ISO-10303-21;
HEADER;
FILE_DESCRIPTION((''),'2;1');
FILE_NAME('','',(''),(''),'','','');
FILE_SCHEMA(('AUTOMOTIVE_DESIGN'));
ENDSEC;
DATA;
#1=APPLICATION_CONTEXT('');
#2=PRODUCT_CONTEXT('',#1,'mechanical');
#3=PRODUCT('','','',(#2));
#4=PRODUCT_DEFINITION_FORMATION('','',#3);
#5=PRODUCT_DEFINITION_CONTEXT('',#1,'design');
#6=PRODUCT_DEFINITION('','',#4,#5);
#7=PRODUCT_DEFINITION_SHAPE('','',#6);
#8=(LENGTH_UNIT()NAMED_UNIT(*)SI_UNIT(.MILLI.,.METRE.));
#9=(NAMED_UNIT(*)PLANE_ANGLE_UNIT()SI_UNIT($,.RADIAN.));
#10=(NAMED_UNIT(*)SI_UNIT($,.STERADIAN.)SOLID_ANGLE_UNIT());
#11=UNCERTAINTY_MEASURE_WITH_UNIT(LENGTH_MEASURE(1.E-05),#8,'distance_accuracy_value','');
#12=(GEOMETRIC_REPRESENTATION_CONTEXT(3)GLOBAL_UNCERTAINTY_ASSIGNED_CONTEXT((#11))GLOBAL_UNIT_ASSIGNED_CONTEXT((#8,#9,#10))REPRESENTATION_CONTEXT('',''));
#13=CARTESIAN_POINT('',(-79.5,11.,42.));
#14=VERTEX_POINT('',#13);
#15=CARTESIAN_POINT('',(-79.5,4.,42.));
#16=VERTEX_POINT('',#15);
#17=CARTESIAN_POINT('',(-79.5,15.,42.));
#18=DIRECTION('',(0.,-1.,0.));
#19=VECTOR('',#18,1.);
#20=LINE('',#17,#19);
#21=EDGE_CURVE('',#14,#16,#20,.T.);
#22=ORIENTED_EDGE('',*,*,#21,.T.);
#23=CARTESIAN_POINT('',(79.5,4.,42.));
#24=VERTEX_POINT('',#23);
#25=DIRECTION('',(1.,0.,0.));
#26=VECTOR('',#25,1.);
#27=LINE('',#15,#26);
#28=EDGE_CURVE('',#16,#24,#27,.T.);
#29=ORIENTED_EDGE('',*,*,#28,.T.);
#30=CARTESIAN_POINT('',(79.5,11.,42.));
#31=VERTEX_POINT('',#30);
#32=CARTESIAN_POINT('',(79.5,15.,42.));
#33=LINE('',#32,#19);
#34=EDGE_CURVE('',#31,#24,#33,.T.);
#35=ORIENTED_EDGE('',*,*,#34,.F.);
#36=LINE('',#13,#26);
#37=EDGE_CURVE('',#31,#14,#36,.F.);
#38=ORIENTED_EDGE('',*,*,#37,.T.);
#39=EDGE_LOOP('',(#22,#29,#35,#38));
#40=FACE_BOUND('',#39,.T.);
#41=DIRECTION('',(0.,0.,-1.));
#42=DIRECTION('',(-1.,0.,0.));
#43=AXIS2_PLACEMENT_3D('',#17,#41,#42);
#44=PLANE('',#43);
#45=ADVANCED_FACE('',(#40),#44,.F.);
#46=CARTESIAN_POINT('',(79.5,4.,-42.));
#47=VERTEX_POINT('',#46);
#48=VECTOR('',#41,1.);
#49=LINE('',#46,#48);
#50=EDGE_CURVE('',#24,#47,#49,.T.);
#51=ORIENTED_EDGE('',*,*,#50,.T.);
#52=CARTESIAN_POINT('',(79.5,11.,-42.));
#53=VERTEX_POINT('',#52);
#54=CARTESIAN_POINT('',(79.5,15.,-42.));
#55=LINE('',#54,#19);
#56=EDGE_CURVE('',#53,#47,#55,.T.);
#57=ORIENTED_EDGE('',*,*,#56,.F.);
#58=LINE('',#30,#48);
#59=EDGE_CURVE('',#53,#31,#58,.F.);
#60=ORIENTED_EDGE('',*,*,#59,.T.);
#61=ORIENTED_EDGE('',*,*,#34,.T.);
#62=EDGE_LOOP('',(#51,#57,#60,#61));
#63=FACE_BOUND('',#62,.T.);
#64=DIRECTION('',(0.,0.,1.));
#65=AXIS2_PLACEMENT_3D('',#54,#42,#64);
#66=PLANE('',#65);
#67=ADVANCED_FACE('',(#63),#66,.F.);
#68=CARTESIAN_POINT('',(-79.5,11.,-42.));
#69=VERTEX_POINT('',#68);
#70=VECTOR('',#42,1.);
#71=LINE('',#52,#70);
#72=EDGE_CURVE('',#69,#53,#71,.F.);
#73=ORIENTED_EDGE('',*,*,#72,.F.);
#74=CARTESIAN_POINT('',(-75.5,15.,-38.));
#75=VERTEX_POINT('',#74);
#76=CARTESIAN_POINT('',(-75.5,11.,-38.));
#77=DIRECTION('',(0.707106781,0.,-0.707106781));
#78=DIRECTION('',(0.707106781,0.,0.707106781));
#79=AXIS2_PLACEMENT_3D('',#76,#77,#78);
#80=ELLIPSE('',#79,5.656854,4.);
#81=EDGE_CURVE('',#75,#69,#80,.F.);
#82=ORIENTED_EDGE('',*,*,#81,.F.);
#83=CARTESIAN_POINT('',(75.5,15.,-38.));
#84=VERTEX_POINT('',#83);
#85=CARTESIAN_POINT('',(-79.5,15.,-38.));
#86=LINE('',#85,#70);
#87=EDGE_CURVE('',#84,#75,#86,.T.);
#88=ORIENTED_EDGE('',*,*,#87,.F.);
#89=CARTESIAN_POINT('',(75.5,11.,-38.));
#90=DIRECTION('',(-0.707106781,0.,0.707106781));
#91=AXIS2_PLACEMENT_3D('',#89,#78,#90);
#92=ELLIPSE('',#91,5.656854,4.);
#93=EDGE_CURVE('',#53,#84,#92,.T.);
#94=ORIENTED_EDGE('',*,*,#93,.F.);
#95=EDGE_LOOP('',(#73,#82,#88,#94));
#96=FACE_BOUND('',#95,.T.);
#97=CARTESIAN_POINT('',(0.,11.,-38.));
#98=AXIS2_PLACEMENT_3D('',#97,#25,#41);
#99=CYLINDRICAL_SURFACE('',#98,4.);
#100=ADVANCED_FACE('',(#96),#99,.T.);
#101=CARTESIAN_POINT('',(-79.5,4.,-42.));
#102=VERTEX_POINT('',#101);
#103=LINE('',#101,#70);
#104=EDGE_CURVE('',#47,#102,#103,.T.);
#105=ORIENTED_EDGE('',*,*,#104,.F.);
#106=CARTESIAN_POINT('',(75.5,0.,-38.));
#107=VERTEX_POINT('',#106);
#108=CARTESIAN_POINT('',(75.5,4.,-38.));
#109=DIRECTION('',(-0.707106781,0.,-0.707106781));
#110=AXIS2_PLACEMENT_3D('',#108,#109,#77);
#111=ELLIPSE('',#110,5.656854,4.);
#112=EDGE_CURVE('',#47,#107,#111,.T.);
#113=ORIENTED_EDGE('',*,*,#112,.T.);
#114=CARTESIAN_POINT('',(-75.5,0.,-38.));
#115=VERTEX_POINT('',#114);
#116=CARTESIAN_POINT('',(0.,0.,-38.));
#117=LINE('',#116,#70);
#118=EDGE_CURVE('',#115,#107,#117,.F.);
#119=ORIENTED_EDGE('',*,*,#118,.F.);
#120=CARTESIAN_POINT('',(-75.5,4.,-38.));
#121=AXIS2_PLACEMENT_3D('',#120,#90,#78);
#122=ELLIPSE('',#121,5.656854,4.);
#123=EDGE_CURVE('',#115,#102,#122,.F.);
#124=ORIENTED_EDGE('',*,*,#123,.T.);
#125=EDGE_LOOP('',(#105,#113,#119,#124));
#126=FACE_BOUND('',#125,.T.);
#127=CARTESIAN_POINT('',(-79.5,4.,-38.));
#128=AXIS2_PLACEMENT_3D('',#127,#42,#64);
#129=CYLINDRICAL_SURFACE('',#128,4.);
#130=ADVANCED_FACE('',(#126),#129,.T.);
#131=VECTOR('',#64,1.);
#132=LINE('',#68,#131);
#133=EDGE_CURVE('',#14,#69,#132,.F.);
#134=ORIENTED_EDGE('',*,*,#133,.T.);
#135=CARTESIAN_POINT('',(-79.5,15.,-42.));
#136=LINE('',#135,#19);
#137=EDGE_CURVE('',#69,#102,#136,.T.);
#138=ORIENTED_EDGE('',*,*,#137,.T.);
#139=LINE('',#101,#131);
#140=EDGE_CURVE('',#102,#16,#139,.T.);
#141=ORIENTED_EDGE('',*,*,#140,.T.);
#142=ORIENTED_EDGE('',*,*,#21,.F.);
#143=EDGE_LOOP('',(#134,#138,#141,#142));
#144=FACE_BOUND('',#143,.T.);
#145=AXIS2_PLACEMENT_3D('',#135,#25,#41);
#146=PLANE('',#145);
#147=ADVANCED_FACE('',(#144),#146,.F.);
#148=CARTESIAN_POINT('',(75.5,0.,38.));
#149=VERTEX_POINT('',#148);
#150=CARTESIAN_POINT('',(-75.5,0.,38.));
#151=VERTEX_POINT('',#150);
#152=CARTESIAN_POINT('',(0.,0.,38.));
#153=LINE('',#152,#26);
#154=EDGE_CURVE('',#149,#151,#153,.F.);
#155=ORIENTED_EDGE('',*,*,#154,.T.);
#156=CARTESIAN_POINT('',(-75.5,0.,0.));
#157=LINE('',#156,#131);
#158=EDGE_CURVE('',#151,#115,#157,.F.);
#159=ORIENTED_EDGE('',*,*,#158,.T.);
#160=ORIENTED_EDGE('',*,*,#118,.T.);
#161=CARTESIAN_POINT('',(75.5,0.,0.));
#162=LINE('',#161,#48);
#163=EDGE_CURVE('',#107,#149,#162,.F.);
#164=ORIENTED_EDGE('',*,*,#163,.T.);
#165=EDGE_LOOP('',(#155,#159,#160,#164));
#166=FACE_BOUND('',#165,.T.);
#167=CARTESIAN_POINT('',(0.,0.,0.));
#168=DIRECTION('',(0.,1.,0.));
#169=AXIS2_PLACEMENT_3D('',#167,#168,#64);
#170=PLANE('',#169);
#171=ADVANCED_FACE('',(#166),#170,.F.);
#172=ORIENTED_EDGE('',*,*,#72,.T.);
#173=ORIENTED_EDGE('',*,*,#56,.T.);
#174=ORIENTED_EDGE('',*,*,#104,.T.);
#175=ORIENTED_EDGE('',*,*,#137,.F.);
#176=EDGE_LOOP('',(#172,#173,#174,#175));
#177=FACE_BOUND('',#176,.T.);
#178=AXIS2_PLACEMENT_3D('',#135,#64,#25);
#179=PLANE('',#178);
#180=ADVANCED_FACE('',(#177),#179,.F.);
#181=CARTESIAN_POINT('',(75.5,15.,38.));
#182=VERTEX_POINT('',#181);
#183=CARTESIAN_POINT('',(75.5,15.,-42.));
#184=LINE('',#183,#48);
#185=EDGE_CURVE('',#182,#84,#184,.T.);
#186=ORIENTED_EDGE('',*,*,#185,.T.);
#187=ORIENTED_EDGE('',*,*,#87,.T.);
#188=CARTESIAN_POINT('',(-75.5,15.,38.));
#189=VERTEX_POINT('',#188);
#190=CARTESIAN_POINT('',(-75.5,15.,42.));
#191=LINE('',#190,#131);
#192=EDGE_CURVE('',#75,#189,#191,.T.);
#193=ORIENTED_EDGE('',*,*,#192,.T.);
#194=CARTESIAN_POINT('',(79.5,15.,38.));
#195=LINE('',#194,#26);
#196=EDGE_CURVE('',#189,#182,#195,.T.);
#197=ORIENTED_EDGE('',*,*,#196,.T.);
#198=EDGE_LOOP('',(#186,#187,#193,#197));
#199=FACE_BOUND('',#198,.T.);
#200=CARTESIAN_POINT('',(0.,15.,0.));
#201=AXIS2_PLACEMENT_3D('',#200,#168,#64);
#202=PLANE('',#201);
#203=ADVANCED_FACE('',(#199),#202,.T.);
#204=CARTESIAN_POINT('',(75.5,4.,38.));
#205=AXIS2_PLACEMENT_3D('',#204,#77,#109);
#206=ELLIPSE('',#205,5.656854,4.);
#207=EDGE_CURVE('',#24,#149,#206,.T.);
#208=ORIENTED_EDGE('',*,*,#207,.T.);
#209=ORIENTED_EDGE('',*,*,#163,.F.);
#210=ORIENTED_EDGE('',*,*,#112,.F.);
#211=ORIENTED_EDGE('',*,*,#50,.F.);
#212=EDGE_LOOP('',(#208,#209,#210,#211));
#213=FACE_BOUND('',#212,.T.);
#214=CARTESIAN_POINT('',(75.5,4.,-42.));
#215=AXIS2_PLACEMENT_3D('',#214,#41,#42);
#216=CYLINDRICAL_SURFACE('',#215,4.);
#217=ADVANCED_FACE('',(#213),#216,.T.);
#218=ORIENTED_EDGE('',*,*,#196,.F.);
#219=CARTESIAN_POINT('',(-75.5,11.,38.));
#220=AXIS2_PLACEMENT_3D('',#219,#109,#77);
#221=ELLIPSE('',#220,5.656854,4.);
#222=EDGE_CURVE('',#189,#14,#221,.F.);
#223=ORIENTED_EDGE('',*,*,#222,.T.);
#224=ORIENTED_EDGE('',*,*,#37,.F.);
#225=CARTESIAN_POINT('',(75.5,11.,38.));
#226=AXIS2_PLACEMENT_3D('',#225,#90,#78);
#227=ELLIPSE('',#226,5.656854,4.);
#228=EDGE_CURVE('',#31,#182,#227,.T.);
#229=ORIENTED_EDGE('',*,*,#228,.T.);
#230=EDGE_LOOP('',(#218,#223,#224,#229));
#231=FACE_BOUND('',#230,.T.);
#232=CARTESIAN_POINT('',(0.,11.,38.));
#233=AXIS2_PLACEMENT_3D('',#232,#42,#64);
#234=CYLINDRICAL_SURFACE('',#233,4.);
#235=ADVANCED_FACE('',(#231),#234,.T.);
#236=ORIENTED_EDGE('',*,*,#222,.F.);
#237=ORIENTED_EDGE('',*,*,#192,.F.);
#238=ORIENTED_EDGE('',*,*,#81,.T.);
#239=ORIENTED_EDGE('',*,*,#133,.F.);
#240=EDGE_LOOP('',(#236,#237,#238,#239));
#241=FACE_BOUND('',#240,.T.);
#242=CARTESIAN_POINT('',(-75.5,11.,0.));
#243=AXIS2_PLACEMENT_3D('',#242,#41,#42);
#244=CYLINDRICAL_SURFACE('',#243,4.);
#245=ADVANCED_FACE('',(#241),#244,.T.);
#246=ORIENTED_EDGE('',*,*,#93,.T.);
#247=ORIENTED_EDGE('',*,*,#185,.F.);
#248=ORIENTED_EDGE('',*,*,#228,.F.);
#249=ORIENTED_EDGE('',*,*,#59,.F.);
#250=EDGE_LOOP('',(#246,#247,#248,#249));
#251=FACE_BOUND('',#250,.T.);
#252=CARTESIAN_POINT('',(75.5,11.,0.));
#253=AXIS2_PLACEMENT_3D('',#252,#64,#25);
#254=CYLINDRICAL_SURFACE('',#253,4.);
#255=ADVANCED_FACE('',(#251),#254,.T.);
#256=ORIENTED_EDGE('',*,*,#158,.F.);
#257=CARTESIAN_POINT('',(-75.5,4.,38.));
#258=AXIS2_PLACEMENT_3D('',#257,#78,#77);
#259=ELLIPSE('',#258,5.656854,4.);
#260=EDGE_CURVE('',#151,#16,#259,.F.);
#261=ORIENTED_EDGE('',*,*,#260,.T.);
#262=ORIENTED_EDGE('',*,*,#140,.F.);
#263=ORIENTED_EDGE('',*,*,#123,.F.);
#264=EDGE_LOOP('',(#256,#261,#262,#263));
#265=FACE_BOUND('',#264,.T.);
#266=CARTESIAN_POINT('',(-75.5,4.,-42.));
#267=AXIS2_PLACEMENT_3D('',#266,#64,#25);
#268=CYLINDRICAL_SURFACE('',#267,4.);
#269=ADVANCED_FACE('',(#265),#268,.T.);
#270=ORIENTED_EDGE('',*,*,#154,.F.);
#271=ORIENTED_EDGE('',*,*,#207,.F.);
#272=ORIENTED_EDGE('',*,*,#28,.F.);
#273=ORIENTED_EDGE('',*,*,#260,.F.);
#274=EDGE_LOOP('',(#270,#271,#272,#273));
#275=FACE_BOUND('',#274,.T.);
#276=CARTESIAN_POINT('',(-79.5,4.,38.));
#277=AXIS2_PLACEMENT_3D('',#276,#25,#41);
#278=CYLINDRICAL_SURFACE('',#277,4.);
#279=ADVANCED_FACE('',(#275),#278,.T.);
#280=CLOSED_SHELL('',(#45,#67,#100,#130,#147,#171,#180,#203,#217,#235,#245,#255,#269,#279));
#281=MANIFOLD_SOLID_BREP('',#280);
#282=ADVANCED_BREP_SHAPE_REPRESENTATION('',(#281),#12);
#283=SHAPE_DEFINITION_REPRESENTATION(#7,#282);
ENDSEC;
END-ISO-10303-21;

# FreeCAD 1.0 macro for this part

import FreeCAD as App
import Part
import Sketcher
from FreeCAD import Vector


def edges_at(feature, points):
    """Names of the edges that pass closest to the given points."""
    edges = feature.Shape.Edges
    near = lambda p: min(range(len(edges)), key=lambda i: edges[i].distToShape(Part.Vertex(*p))[0])
    return sorted({f"Edge{near(p) + 1}" for p in points})

doc = App.newDocument("Part")
body = doc.addObject("PartDesign::Body", "Body")

# Sketch on XZ plane
sketch1 = body.newObject("Sketcher::SketchObject", "Sketch")
sketch1.AttachmentSupport = (doc.getObject("XZ_Plane"), [""])
sketch1.MapMode = "FlatFace"
sketch1.addGeometry([
    Part.LineSegment(Vector(-80, -42, 0), Vector(-80, 42, 0)),
    Part.LineSegment(Vector(-80, 42, 0), Vector(80, 42, 0)),
    Part.LineSegment(Vector(80, 42, 0), Vector(80, -42, 0)),
    Part.LineSegment(Vector(80, -42, 0), Vector(-80, -42, 0)),
], False)
sketch1.addConstraint([
    Sketcher.Constraint("Coincident", 0, 2, 1, 1),
    Sketcher.Constraint("Coincident", 1, 2, 2, 1),
    Sketcher.Constraint("Coincident", 2, 2, 3, 1),
    Sketcher.Constraint("Coincident", 3, 2, 0, 1),
    Sketcher.Constraint("Vertical", 0),
    Sketcher.Constraint("Horizontal", 1),
    Sketcher.Constraint("Vertical", 2),
    Sketcher.Constraint("Horizontal", 3),
    Sketcher.Constraint("Symmetric", 0, 2, 2, 2, -1, 1),
    Sketcher.Constraint("DistanceX", 1, 1, 1, 2, 159.0),
    Sketcher.Constraint("DistanceY", 0, 1, 0, 2, 84.0),
])
pad1 = body.newObject("PartDesign::Pad", "Pad")
pad1.Profile = sketch1
pad1.Length = 15
pad1.Reversed = True
doc.recompute()

fillet = body.newObject("PartDesign::Fillet", "Fillet")
fillet.Base = (pad1, edges_at(pad1, [
    (-79.5, 15, 0),
    (0, 15, 42),
    (79.5, 15, 0),
    (0, 0, 42),
    (-79.5, 0, 0),
    (0, 0, -42),
    (79.5, 0, 0),
    (0, 15, -42),
]))
fillet.Radius = 4

doc.recompute()
